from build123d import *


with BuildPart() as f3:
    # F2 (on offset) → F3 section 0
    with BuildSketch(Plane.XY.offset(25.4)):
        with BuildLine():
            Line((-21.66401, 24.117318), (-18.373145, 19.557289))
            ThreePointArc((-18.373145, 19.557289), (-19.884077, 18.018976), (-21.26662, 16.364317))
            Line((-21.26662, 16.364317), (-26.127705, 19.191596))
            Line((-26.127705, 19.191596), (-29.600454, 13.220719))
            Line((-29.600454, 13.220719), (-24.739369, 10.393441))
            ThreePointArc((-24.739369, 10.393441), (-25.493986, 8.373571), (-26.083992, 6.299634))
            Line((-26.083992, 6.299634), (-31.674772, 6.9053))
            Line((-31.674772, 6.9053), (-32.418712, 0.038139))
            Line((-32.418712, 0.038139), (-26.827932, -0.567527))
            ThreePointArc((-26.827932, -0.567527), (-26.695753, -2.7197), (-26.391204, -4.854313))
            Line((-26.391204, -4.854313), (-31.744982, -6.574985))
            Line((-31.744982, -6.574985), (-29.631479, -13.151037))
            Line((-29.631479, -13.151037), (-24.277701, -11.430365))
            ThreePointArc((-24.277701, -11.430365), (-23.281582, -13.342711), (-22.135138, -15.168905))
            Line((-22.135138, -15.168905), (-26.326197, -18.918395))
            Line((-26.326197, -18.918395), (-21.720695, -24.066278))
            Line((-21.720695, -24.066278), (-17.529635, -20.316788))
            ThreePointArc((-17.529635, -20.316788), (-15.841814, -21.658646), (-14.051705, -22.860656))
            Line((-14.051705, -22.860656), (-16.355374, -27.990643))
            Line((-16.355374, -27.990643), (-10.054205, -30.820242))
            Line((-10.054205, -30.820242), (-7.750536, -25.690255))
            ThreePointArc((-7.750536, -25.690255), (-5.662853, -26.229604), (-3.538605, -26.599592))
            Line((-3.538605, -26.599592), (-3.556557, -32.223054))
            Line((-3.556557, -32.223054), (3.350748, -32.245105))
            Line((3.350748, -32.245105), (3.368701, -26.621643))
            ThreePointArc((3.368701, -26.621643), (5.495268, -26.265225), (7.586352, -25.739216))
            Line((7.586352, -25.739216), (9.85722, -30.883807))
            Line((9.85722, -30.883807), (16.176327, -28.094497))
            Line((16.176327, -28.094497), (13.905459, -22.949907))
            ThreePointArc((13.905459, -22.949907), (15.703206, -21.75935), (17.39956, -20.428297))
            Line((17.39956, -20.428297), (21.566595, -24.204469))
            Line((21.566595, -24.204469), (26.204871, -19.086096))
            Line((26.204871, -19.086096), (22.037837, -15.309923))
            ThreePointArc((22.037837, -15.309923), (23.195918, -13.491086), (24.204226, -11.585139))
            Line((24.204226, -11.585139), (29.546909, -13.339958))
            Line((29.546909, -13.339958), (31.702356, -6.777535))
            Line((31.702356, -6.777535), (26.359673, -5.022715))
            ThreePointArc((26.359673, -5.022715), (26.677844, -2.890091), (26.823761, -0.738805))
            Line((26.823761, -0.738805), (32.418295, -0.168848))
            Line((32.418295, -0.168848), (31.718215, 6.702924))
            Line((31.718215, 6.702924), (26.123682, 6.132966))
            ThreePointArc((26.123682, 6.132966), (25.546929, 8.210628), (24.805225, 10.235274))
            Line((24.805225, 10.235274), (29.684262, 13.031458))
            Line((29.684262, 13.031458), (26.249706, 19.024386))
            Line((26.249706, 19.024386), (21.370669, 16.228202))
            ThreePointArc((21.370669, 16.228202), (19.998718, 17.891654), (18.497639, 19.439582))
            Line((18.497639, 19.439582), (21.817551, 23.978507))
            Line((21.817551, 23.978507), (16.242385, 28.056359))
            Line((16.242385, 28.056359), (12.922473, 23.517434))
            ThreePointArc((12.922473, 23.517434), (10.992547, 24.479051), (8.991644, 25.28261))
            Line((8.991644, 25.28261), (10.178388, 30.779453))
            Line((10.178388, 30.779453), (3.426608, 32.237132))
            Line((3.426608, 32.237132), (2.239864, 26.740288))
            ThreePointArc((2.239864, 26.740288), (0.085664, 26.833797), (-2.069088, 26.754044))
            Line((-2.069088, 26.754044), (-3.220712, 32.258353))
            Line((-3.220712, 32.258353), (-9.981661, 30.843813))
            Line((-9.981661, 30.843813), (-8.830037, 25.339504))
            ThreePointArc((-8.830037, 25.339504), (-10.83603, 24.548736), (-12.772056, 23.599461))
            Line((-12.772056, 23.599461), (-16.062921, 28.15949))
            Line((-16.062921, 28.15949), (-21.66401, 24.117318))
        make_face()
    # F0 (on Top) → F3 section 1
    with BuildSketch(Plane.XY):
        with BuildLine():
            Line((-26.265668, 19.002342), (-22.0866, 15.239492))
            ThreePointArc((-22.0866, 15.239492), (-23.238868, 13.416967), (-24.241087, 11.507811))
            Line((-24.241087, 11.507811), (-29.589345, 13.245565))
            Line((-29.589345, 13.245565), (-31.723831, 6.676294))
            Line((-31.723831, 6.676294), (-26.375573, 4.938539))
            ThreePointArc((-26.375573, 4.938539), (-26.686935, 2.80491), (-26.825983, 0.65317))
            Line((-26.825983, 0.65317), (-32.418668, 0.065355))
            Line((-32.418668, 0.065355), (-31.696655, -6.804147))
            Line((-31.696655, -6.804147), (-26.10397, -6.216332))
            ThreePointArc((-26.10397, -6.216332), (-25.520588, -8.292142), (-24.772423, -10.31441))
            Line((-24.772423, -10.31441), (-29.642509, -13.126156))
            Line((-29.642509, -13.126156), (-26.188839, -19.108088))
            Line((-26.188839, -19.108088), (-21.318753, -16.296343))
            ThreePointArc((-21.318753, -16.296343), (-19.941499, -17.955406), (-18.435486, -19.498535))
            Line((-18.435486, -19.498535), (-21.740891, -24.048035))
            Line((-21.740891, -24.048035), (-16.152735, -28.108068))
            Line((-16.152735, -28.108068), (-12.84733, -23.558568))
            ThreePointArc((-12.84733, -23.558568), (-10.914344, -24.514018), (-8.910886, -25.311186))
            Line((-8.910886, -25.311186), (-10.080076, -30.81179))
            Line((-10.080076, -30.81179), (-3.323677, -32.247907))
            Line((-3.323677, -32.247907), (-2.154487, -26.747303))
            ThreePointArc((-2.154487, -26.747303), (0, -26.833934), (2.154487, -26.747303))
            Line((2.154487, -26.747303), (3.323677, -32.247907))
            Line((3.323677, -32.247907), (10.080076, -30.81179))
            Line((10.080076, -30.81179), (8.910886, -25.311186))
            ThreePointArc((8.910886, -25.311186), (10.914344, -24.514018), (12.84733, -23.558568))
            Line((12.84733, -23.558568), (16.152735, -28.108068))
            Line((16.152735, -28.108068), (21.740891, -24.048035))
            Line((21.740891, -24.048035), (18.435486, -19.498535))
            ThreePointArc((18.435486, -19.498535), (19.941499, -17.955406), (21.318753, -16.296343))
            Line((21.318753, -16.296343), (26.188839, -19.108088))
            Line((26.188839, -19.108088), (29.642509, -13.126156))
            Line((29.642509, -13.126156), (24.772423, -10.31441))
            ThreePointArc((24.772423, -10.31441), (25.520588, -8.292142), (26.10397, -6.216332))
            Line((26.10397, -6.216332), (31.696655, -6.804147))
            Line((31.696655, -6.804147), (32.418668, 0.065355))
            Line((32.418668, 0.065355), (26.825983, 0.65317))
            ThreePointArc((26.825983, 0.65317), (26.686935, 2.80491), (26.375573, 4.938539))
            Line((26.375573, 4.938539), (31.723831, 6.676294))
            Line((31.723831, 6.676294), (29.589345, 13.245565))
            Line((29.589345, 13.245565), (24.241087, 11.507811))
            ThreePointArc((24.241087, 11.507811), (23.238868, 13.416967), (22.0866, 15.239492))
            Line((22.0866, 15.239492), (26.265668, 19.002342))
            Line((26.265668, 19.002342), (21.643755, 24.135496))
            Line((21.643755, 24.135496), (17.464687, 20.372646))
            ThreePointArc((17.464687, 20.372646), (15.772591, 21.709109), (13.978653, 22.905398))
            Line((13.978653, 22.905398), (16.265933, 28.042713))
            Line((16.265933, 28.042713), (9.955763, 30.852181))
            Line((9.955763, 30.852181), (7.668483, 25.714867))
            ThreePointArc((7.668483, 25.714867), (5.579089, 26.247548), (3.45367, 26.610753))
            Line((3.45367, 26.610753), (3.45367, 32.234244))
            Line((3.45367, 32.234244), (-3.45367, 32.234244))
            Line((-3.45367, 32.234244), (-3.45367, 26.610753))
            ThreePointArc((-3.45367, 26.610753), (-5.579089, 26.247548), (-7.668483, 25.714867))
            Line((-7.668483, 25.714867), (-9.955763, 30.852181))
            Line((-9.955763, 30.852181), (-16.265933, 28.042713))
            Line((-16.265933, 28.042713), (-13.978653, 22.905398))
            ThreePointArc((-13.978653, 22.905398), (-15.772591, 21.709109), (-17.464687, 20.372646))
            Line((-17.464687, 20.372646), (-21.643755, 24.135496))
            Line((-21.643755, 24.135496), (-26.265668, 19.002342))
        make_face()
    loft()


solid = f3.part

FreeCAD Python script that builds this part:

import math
import FreeCAD as App
import Part
import Sketcher
from FreeCAD import Vector
Q = App.Units.Quantity

doc = App.newDocument("Part")
body = doc.addObject("PartDesign::Body", "Body")

# Sketch on XY plane
sketch1 = body.newObject("Sketcher::SketchObject", "Sketch")
sketch1.AttachmentSupport = (doc.getObject("XY_Plane"), [""])
sketch1.MapMode = "FlatFace"
sketch1.AttachmentOffset = App.Placement(Vector(0, 0, 25.4), App.Rotation())
sketch1.addGeometry(Part.LineSegment(Vector(-21.66401, 24.117318, 0), Vector(-18.373145, 19.557289, 0)), False)
sketch1.addGeometry(Part.ArcOfCircle(Part.Circle(Vector(-0.000044, 0.000042, 0), Vector(0, 0, 1), 26.833873), math.radians(133.211866), math.radians(142.422319)), False)
sketch1.addGeometry(Part.LineSegment(Vector(-21.26662, 16.364317, 0), Vector(-26.127705, 19.191596, 0)), False)
sketch1.addGeometry(Part.LineSegment(Vector(-26.127705, 19.191596, 0), Vector(-29.600454, 13.220719, 0)), False)
sketch1.addGeometry(Part.LineSegment(Vector(-29.600454, 13.220719, 0), Vector(-24.739369, 10.393441, 0)), False)
sketch1.addGeometry(Part.ArcOfCircle(Part.Circle(Vector(-0.000016, 0.000001, 0), Vector(0, 0, 1), 26.833918), math.radians(157.211863), math.radians(166.4223)), False)
sketch1.addGeometry(Part.LineSegment(Vector(-26.083992, 6.299634, 0), Vector(-31.674772, 6.9053, 0)), False)
sketch1.addGeometry(Part.LineSegment(Vector(-31.674772, 6.9053, 0), Vector(-32.418712, 0.038139, 0)), False)
sketch1.addGeometry(Part.LineSegment(Vector(-32.418712, 0.038139, 0), Vector(-26.827932, -0.567527, 0)), False)
sketch1.addGeometry(Part.ArcOfCircle(Part.Circle(Vector(0.000094, 0.000012, 0), Vector(0, 0, 1), 26.834029), math.radians(-178.788106), math.radians(-169.577707)), False)
sketch1.addGeometry(Part.LineSegment(Vector(-26.391204, -4.854313, 0), Vector(-31.744982, -6.574985, 0)), False)
sketch1.addGeometry(Part.LineSegment(Vector(-31.744982, -6.574985, 0), Vector(-29.631479, -13.151037, 0)), False)
sketch1.addGeometry(Part.LineSegment(Vector(-29.631479, -13.151037, 0), Vector(-24.277701, -11.430365, 0)), False)
sketch1.addGeometry(Part.ArcOfCircle(Part.Circle(Vector(0.000072, 0.000041, 0), Vector(0, 0, 1), 26.834016), math.radians(-154.788113), math.radians(-145.577711)), False)
sketch1.addGeometry(Part.LineSegment(Vector(-22.135138, -15.168905, 0), Vector(-26.326197, -18.918395, 0)), False)
sketch1.addGeometry(Part.LineSegment(Vector(-26.326197, -18.918395, 0), Vector(-21.720695, -24.066278, 0)), False)
sketch1.addGeometry(Part.LineSegment(Vector(-21.720695, -24.066278, 0), Vector(-17.529635, -20.316788, 0)), False)
sketch1.addGeometry(Part.ArcOfCircle(Part.Circle(Vector(-0.000084, -0.00012, 0), Vector(0, 0, 1), 26.833788), math.radians(-130.788159), math.radians(-121.577678)), False)
sketch1.addGeometry(Part.LineSegment(Vector(-14.051705, -22.860656, 0), Vector(-16.355374, -27.990643, 0)), False)
sketch1.addGeometry(Part.LineSegment(Vector(-16.355374, -27.990643, 0), Vector(-10.054205, -30.820242, 0)), False)
sketch1.addGeometry(Part.LineSegment(Vector(-10.054205, -30.820242, 0), Vector(-7.750536, -25.690255, 0)), False)
sketch1.addGeometry(Part.ArcOfCircle(Part.Circle(Vector(-0.000017, -0.000085, 0), Vector(0, 0, 1), 26.833848), math.radians(-106.788143), math.radians(-97.577684)), False)
sketch1.addGeometry(Part.LineSegment(Vector(-3.538605, -26.599592, 0), Vector(-3.556557, -32.223054, 0)), False)
sketch1.addGeometry(Part.LineSegment(Vector(-3.556557, -32.223054, 0), Vector(3.350748, -32.245105, 0)), False)
sketch1.addGeometry(Part.LineSegment(Vector(3.350748, -32.245105, 0), Vector(3.368701, -26.621643, 0)), False)
sketch1.addGeometry(Part.ArcOfCircle(Part.Circle(Vector(0.000013, -0.000086, 0), Vector(0, 0, 1), 26.833848), math.radians(-82.788129), math.radians(-73.57767)), False)
sketch1.addGeometry(Part.LineSegment(Vector(7.586352, -25.739216, 0), Vector(9.85722, -30.883807, 0)), False)
sketch1.addGeometry(Part.LineSegment(Vector(9.85722, -30.883807, 0), Vector(16.176327, -28.094497, 0)), False)
sketch1.addGeometry(Part.LineSegment(Vector(16.176327, -28.094497, 0), Vector(13.905459, -22.949907, 0)), False)
sketch1.addGeometry(Part.ArcOfCircle(Part.Circle(Vector(-0.000078, 0.000106, 0), Vector(0, 0, 1), 26.834065), math.radians(-58.7881), math.radians(-49.577715)), False)
sketch1.addGeometry(Part.LineSegment(Vector(17.39956, -20.428297, 0), Vector(21.566595, -24.204469, 0)), False)
sketch1.addGeometry(Part.LineSegment(Vector(21.566595, -24.204469, 0), Vector(26.204871, -19.086096, 0)), False)
sketch1.addGeometry(Part.LineSegment(Vector(26.204871, -19.086096, 0), Vector(22.037837, -15.309923, 0)), False)
sketch1.addGeometry(Part.ArcOfCircle(Part.Circle(Vector(0.000057, -0.000033, 0), Vector(0, 0, 1), 26.833868), math.radians(-34.788137), math.radians(-25.577685)), False)
sketch1.addGeometry(Part.LineSegment(Vector(24.204226, -11.585139, 0), Vector(29.546909, -13.339958, 0)), False)
sketch1.addGeometry(Part.LineSegment(Vector(29.546909, -13.339958, 0), Vector(31.702356, -6.777535, 0)), False)
sketch1.addGeometry(Part.LineSegment(Vector(31.702356, -6.777535, 0), Vector(26.359673, -5.022715, 0)), False)
sketch1.addGeometry(Part.ArcOfCircle(Part.Circle(Vector(-0.000117, 0.000008, 0), Vector(0, 0, 1), 26.834051), math.radians(-10.788096), math.radians(-1.577705)), False)
sketch1.addGeometry(Part.LineSegment(Vector(26.823761, -0.738805, 0), Vector(32.418295, -0.168848, 0)), False)
sketch1.addGeometry(Part.LineSegment(Vector(32.418295, -0.168848, 0), Vector(31.718215, 6.702924, 0)), False)
sketch1.addGeometry(Part.LineSegment(Vector(31.718215, 6.702924, 0), Vector(26.123682, 6.132966, 0)), False)
sketch1.addGeometry(Part.ArcOfCircle(Part.Circle(Vector(-0.000185, -0.000061, 0), Vector(0, 0, 1), 26.834128), math.radians(13.21191), math.radians(22.422273)), False)
sketch1.addGeometry(Part.LineSegment(Vector(24.805225, 10.235274, 0), Vector(29.684262, 13.031458, 0)), False)
sketch1.addGeometry(Part.LineSegment(Vector(29.684262, 13.031458, 0), Vector(26.249706, 19.024386, 0)), False)
sketch1.addGeometry(Part.LineSegment(Vector(26.249706, 19.024386, 0), Vector(21.370669, 16.228202, 0)), False)
sketch1.addGeometry(Part.ArcOfCircle(Part.Circle(Vector(-0.000044, -0.000045, 0), Vector(0, 0, 1), 26.833996), math.radians(37.211893), math.radians(46.422303)), False)
sketch1.addGeometry(Part.LineSegment(Vector(18.497639, 19.439582, 0), Vector(21.817551, 23.978507, 0)), False)
sketch1.addGeometry(Part.LineSegment(Vector(21.817551, 23.978507, 0), Vector(16.242385, 28.056359, 0)), False)
sketch1.addGeometry(Part.LineSegment(Vector(16.242385, 28.056359, 0), Vector(12.922473, 23.517434, 0)), False)
sketch1.addGeometry(Part.ArcOfCircle(Part.Circle(Vector(0.000015, 0.000038, 0), Vector(0, 0, 1), 26.833893), math.radians(61.211862), math.radians(70.422306)), False)
sketch1.addGeometry(Part.LineSegment(Vector(8.991644, 25.28261, 0), Vector(10.178388, 30.779453, 0)), False)
sketch1.addGeometry(Part.LineSegment(Vector(10.178388, 30.779453, 0), Vector(3.426608, 32.237132, 0)), False)
sketch1.addGeometry(Part.LineSegment(Vector(3.426608, 32.237132, 0), Vector(2.239864, 26.740288, 0)), False)
sketch1.addGeometry(Part.ArcOfCircle(Part.Circle(Vector(0, 0.000032, 0), Vector(0, 0, 1), 26.833902), math.radians(85.211868), math.radians(94.422308)), False)
sketch1.addGeometry(Part.LineSegment(Vector(-2.069088, 26.754044, 0), Vector(-3.220712, 32.258353, 0)), False)
sketch1.addGeometry(Part.LineSegment(Vector(-3.220712, 32.258353, 0), Vector(-9.981661, 30.843813, 0)), False)
sketch1.addGeometry(Part.LineSegment(Vector(-9.981661, 30.843813, 0), Vector(-8.830037, 25.339504, 0)), False)
sketch1.addGeometry(Part.ArcOfCircle(Part.Circle(Vector(0.000027, -0.00005, 0), Vector(0, 0, 1), 26.83399), math.radians(109.211893), math.radians(118.422305)), False)
sketch1.addGeometry(Part.LineSegment(Vector(-12.772056, 23.599461, 0), Vector(-16.062921, 28.15949, 0)), False)
sketch1.addGeometry(Part.LineSegment(Vector(-16.062921, 28.15949, 0), Vector(-21.66401, 24.117318, 0)), False)
sketch1.addConstraint(Sketcher.Constraint("Coincident", 0, 2, 1, 1))
sketch1.addConstraint(Sketcher.Constraint("Coincident", 1, 2, 2, 1))
sketch1.addConstraint(Sketcher.Constraint("Coincident", 2, 2, 3, 1))
sketch1.addConstraint(Sketcher.Constraint("Coincident", 3, 2, 4, 1))
sketch1.addConstraint(Sketcher.Constraint("Coincident", 4, 2, 5, 1))
sketch1.addConstraint(Sketcher.Constraint("Coincident", 5, 2, 6, 1))
sketch1.addConstraint(Sketcher.Constraint("Coincident", 6, 2, 7, 1))
sketch1.addConstraint(Sketcher.Constraint("Coincident", 7, 2, 8, 1))
sketch1.addConstraint(Sketcher.Constraint("Coincident", 8, 2, 9, 1))
sketch1.addConstraint(Sketcher.Constraint("Coincident", 9, 2, 10, 1))
sketch1.addConstraint(Sketcher.Constraint("Coincident", 10, 2, 11, 1))
sketch1.addConstraint(Sketcher.Constraint("Coincident", 11, 2, 12, 1))
sketch1.addConstraint(Sketcher.Constraint("Coincident", 12, 2, 13, 1))
sketch1.addConstraint(Sketcher.Constraint("Coincident", 13, 2, 14, 1))
sketch1.addConstraint(Sketcher.Constraint("Coincident", 14, 2, 15, 1))
sketch1.addConstraint(Sketcher.Constraint("Coincident", 15, 2, 16, 1))
sketch1.addConstraint(Sketcher.Constraint("Coincident", 16, 2, 17, 1))
sketch1.addConstraint(Sketcher.Constraint("Coincident", 17, 2, 18, 1))
sketch1.addConstraint(Sketcher.Constraint("Coincident", 18, 2, 19, 1))
sketch1.addConstraint(Sketcher.Constraint("Coincident", 19, 2, 20, 1))
sketch1.addConstraint(Sketcher.Constraint("Coincident", 20, 2, 21, 1))
sketch1.addConstraint(Sketcher.Constraint("Coincident", 21, 2, 22, 1))
sketch1.addConstraint(Sketcher.Constraint("Coincident", 22, 2, 23, 1))
sketch1.addConstraint(Sketcher.Constraint("Coincident", 23, 2, 24, 1))
sketch1.addConstraint(Sketcher.Constraint("Coincident", 24, 2, 25, 1))
sketch1.addConstraint(Sketcher.Constraint("Coincident", 25, 2, 26, 1))
sketch1.addConstraint(Sketcher.Constraint("Coincident", 26, 2, 27, 1))
sketch1.addConstraint(Sketcher.Constraint("Coincident", 27, 2, 28, 1))
sketch1.addConstraint(Sketcher.Constraint("Coincident", 28, 2, 29, 1))
sketch1.addConstraint(Sketcher.Constraint("Coincident", 29, 2, 30, 1))
sketch1.addConstraint(Sketcher.Constraint("Coincident", 30, 2, 31, 1))
sketch1.addConstraint(Sketcher.Constraint("Coincident", 31, 2, 32, 1))
sketch1.addConstraint(Sketcher.Constraint("Coincident", 32, 2, 33, 1))
sketch1.addConstraint(Sketcher.Constraint("Coincident", 33, 2, 34, 1))
sketch1.addConstraint(Sketcher.Constraint("Coincident", 34, 2, 35, 1))
sketch1.addConstraint(Sketcher.Constraint("Coincident", 35, 2, 36, 1))
sketch1.addConstraint(Sketcher.Constraint("Coincident", 36, 2, 37, 1))
sketch1.addConstraint(Sketcher.Constraint("Coincident", 37, 2, 38, 1))
sketch1.addConstraint(Sketcher.Constraint("Coincident", 38, 2, 39, 1))
sketch1.addConstraint(Sketcher.Constraint("Coincident", 39, 2, 40, 1))
sketch1.addConstraint(Sketcher.Constraint("Coincident", 40, 2, 41, 1))
sketch1.addConstraint(Sketcher.Constraint("Coincident", 41, 2, 42, 1))
sketch1.addConstraint(Sketcher.Constraint("Coincident", 42, 2, 43, 1))
sketch1.addConstraint(Sketcher.Constraint("Coincident", 43, 2, 44, 1))
sketch1.addConstraint(Sketcher.Constraint("Coincident", 44, 2, 45, 1))
sketch1.addConstraint(Sketcher.Constraint("Coincident", 45, 2, 46, 1))
sketch1.addConstraint(Sketcher.Constraint("Coincident", 46, 2, 47, 1))
sketch1.addConstraint(Sketcher.Constraint("Coincident", 47, 2, 48, 1))
sketch1.addConstraint(Sketcher.Constraint("Coincident", 48, 2, 49, 1))
sketch1.addConstraint(Sketcher.Constraint("Coincident", 49, 2, 50, 1))
sketch1.addConstraint(Sketcher.Constraint("Coincident", 50, 2, 51, 1))
sketch1.addConstraint(Sketcher.Constraint("Coincident", 51, 2, 52, 1))
sketch1.addConstraint(Sketcher.Constraint("Coincident", 52, 2, 53, 1))
sketch1.addConstraint(Sketcher.Constraint("Coincident", 53, 2, 54, 1))
sketch1.addConstraint(Sketcher.Constraint("Coincident", 54, 2, 55, 1))
sketch1.addConstraint(Sketcher.Constraint("Coincident", 55, 2, 56, 1))
sketch1.addConstraint(Sketcher.Constraint("Coincident", 56, 2, 57, 1))
sketch1.addConstraint(Sketcher.Constraint("Coincident", 57, 2, 58, 1))
sketch1.addConstraint(Sketcher.Constraint("Coincident", 58, 2, 59, 1))
sketch1.addConstraint(Sketcher.Constraint("Coincident", 59, 2, 0, 1))
sketch1.addConstraint(Sketcher.Constraint("PointOnObject", 5, 3, -1))
sketch1.addConstraint(Sketcher.Constraint("PointOnObject", 53, 3, -2))
sketch1.addConstraint(Sketcher.Constraint("Radius", 5, Q("26.833918 mm")))
sketch1.addConstraint(Sketcher.Constraint("Radius", 9, Q("26.834029 mm")))
sketch1.addConstraint(Sketcher.Constraint("Radius", 33, Q("26.833868 mm")))
sketch1.addConstraint(Sketcher.Constraint("Radius", 37, Q("26.834051 mm")))
sketch1.addConstraint(Sketcher.Constraint("Radius", 41, Q("26.834128 mm")))
sketch1.addConstraint(Sketcher.Constraint("Radius", 57, Q("26.83399 mm")))
sketch1.addConstraint(Sketcher.Constraint("Radius", 1, Q("26.833873 mm")))
sketch1.addConstraint(Sketcher.Constraint("Radius", 13, Q("26.834016 mm")))
sketch1.addConstraint(Sketcher.Constraint("Radius", 17, Q("26.833788 mm")))
sketch1.addConstraint(Sketcher.Constraint("Radius", 21, Q("26.833848 mm")))
sketch1.addConstraint(Sketcher.Constraint("Radius", 25, Q("26.833848 mm")))
sketch1.addConstraint(Sketcher.Constraint("Radius", 29, Q("26.834065 mm")))
sketch1.addConstraint(Sketcher.Constraint("Radius", 45, Q("26.833996 mm")))
sketch1.addConstraint(Sketcher.Constraint("Radius", 49, Q("26.833893 mm")))
sketch1.addConstraint(Sketcher.Constraint("Radius", 53, Q("26.833902 mm")))
sketch1.addConstraint(Sketcher.Constraint("DistanceY", -1, 1, 6, 2, Q("6.9053 mm")))
sketch1.addConstraint(Sketcher.Constraint("DistanceX", 12, 2, -1, 1, Q("24.277701 mm")))
sketch1.addConstraint(Sketcher.Constraint("DistanceX", -1, 1, 24, 2, Q("3.368701 mm")))
sketch1.addConstraint(Sketcher.Constraint("DistanceY", -1, 1, 44, 2, Q("16.228202 mm")))
sketch1.addConstraint(Sketcher.Constraint("Distance", 0, Q("5.623492 mm")))
sketch1.addConstraint(Sketcher.Constraint("Distance", 2, Q("5.623491 mm")))
sketch1.addConstraint(Sketcher.Constraint("Distance", 3, Q("6.907341 mm")))
sketch1.addConstraint(Sketcher.Constraint("Distance", 4, Q("5.623491 mm")))
sketch1.addConstraint(Sketcher.Constraint("Distance", 6, Q("5.623491 mm")))
sketch1.addConstraint(Sketcher.Constraint("Distance", 7, Q("6.90734 mm")))
sketch1.addConstraint(Sketcher.Constraint("Distance", 8, Q("5.623491 mm")))
sketch1.addConstraint(Sketcher.Constraint("Distance", 10, Q("5.623491 mm")))
sketch1.addConstraint(Sketcher.Constraint("Distance", 11, Q("6.907341 mm")))
sketch1.addConstraint(Sketcher.Constraint("Distance", 12, Q("5.623491 mm")))
sketch1.addConstraint(Sketcher.Constraint("Distance", 14, Q("5.623491 mm")))
sketch1.addConstraint(Sketcher.Constraint("Distance", 15, Q("6.90734 mm")))
sketch1.addConstraint(Sketcher.Constraint("Distance", 16, Q("5.623492 mm")))
sketch1.addConstraint(Sketcher.Constraint("Distance", 18, Q("5.623492 mm")))
sketch1.addConstraint(Sketcher.Constraint("Distance", 19, Q("6.907341 mm")))
sketch1.addConstraint(Sketcher.Constraint("Distance", 20, Q("5.623492 mm")))
sketch1.addConstraint(Sketcher.Constraint("Distance", 22, Q("5.623491 mm")))
sketch1.addConstraint(Sketcher.Constraint("Distance", 23, Q("6.90734 mm")))
sketch1.addConstraint(Sketcher.Constraint("Distance", 24, Q("5.623491 mm")))
sketch1.addConstraint(Sketcher.Constraint("Distance", 26, Q("5.623492 mm")))
sketch1.addConstraint(Sketcher.Constraint("Distance", 27, Q("6.907341 mm")))
sketch1.addConstraint(Sketcher.Constraint("Distance", 28, Q("5.623491 mm")))
sketch1.addConstraint(Sketcher.Constraint("Distance", 30, Q("5.623491 mm")))
sketch1.addConstraint(Sketcher.Constraint("Distance", 31, Q("6.90734 mm")))
sketch1.addConstraint(Sketcher.Constraint("Distance", 32, Q("5.623491 mm")))
sketch1.addConstraint(Sketcher.Constraint("Distance", 34, Q("5.623491 mm")))
sketch1.addConstraint(Sketcher.Constraint("Distance", 35, Q("6.90734 mm")))
sketch1.addConstraint(Sketcher.Constraint("Distance", 36, Q("5.623491 mm")))
sketch1.addConstraint(Sketcher.Constraint("Distance", 38, Q("5.623492 mm")))
sketch1.addConstraint(Sketcher.Constraint("Distance", 39, Q("6.907341 mm")))
sketch1.addConstraint(Sketcher.Constraint("Distance", 40, Q("5.623491 mm")))
sketch1.addConstraint(Sketcher.Constraint("Distance", 42, Q("5.623491 mm")))
sketch1.addConstraint(Sketcher.Constraint("Distance", 43, Q("6.907341 mm")))
sketch1.addConstraint(Sketcher.Constraint("Distance", 44, Q("5.623491 mm")))
sketch1.addConstraint(Sketcher.Constraint("Distance", 46, Q("5.623491 mm")))
sketch1.addConstraint(Sketcher.Constraint("Distance", 47, Q("6.907341 mm")))
sketch1.addConstraint(Sketcher.Constraint("Distance", 48, Q("5.623491 mm")))
sketch1.addConstraint(Sketcher.Constraint("Distance", 50, Q("5.62349 mm")))
sketch1.addConstraint(Sketcher.Constraint("Distance", 51, Q("6.907341 mm")))
sketch1.addConstraint(Sketcher.Constraint("Distance", 52, Q("5.623491 mm")))
sketch1.addConstraint(Sketcher.Constraint("Distance", 54, Q("5.623491 mm")))
sketch1.addConstraint(Sketcher.Constraint("Distance", 55, Q("6.907341 mm")))
sketch1.addConstraint(Sketcher.Constraint("Distance", 56, Q("5.623491 mm")))
sketch1.addConstraint(Sketcher.Constraint("Distance", 58, Q("5.623492 mm")))
sketch1.addConstraint(Sketcher.Constraint("Distance", 59, Q("6.90734 mm")))
sketch1.addConstraint(Sketcher.Constraint("DistanceY", 17, 3, -1, 1, Q("0.00012 mm")))
sketch1.addConstraint(Sketcher.Constraint("DistanceY", -1, 1, 0, 2, Q("19.557289 mm")))
sketch1.addConstraint(Sketcher.Constraint("DistanceX", 1, 2, -1, 1, Q("21.26662 mm")))
sketch1.addConstraint(Sketcher.Constraint("DistanceY", -1, 1, 3, 2, Q("13.220719 mm")))
sketch1.addConstraint(Sketcher.Constraint("DistanceX", 4, 2, -1, 1, Q("24.739369 mm")))
sketch1.addConstraint(Sketcher.Constraint("DistanceY", -1, 1, 4, 2, Q("10.393441 mm")))
sketch1.addConstraint(Sketcher.Constraint("DistanceX", 5, 2, -1, 1, Q("26.083992 mm")))
sketch1.addConstraint(Sketcher.Constraint("DistanceY", -1, 1, 7, 2, Q("0.038139 mm")))
sketch1.addConstraint(Sketcher.Constraint("DistanceX", 10, 2, -1, 1, Q("31.744982 mm")))
sketch1.addConstraint(Sketcher.Constraint("DistanceX", 11, 2, -1, 1, Q("29.631479 mm")))
sketch1.addConstraint(Sketcher.Constraint("DistanceY", 15, 2, -1, 1, Q("24.066278 mm")))
sketch1.addConstraint(Sketcher.Constraint("DistanceY", 21, 2, -1, 1, Q("26.599592 mm")))
sketch1.addConstraint(Sketcher.Constraint("DistanceX", -1, 1, 26, 2, Q("9.85722 mm")))
sketch1.addConstraint(Sketcher.Constraint("DistanceX", -1, 1, 28, 2, Q("13.905459 mm")))
sketch1.addConstraint(Sketcher.Constraint("DistanceX", -1, 1, 29, 2, Q("17.39956 mm")))
sketch1.addConstraint(Sketcher.Constraint("DistanceY", 30, 2, -1, 1, Q("24.204469 mm")))
sketch1.addConstraint(Sketcher.Constraint("DistanceX", -1, 1, 31, 2, Q("26.204871 mm")))
sketch1.addConstraint(Sketcher.Constraint("DistanceY", 33, 2, -1, 1, Q("11.585139 mm")))
sketch1.addConstraint(Sketcher.Constraint("DistanceX", -1, 1, 34, 2, Q("29.546909 mm")))
sketch1.addConstraint(Sketcher.Constraint("DistanceX", -1, 1, 37, 2, Q("26.823761 mm")))
sketch1.addConstraint(Sketcher.Constraint("DistanceX", -1, 1, 40, 2, Q("26.123682 mm")))
sketch1.addConstraint(Sketcher.Constraint("DistanceY", -1, 1, 42, 2, Q("13.031458 mm")))
sketch1.addConstraint(Sketcher.Constraint("DistanceX", -1, 1, 44, 2, Q("21.370669 mm")))
sketch1.addConstraint(Sketcher.Constraint("DistanceX", -1, 1, 45, 2, Q("18.497639 mm")))
sketch1.addConstraint(Sketcher.Constraint("DistanceX", -1, 1, 46, 2, Q("21.817551 mm")))
sketch1.addConstraint(Sketcher.Constraint("DistanceY", -1, 1, 47, 2, Q("28.056359 mm")))
sketch1.addConstraint(Sketcher.Constraint("DistanceY", -1, 1, 49, 2, Q("25.28261 mm")))
sketch1.addConstraint(Sketcher.Constraint("DistanceX", 54, 2, -1, 1, Q("3.220712 mm")))
sketch1.addConstraint(Sketcher.Constraint("DistanceX", 55, 2, -1, 1, Q("9.981661 mm")))
sketch1.addConstraint(Sketcher.Constraint("DistanceY", -1, 1, 57, 2, Q("23.599461 mm")))
sketch1.addConstraint(Sketcher.Constraint("DistanceX", 58, 2, -1, 1, Q("16.062921 mm")))
sketch1.addConstraint(Sketcher.Constraint("DistanceY", -1, 1, 58, 2, Q("28.15949 mm")))
sketch1.addConstraint(Sketcher.Constraint("DistanceX", 59, 2, -1, 1, Q("21.66401 mm")))
sketch1.addConstraint(Sketcher.Constraint("DistanceY", -1, 1, 29, 3, Q("0.000106 mm")))
sketch1.addConstraint(Sketcher.Constraint("DistanceX", 37, 3, -1, 1, Q("0.000117 mm")))
sketch1.addConstraint(Sketcher.Constraint("DistanceX", 41, 3, -1, 1, Q("0.000185 mm")))
sketch1.addConstraint(Sketcher.Constraint("DistanceY", -1, 1, 1, 2, Q("16.364317 mm")))
sketch1.addConstraint(Sketcher.Constraint("DistanceX", 8, 2, -1, 1, Q("26.827932 mm")))
sketch1.addConstraint(Sketcher.Constraint("DistanceX", 9, 2, -1, 1, Q("26.391204 mm")))
sketch1.addConstraint(Sketcher.Constraint("DistanceY", 9, 2, -1, 1, Q("4.854313 mm")))
sketch1.addConstraint(Sketcher.Constraint("DistanceX", 13, 2, -1, 1, Q("22.135138 mm")))
sketch1.addConstraint(Sketcher.Constraint("DistanceY", 13, 2, -1, 1, Q("15.168905 mm")))
sketch1.addConstraint(Sketcher.Constraint("DistanceX", 14, 2, -1, 1, Q("26.326197 mm")))
sketch1.addConstraint(Sketcher.Constraint("DistanceX", 16, 2, -1, 1, Q("17.529635 mm")))
sketch1.addConstraint(Sketcher.Constraint("DistanceX", 17, 2, -1, 1, Q("14.051705 mm")))
sketch1.addConstraint(Sketcher.Constraint("DistanceX", 18, 2, -1, 1, Q("16.355374 mm")))
sketch1.addConstraint(Sketcher.Constraint("DistanceX", 19, 2, -1, 1, Q("10.054205 mm")))
sketch1.addConstraint(Sketcher.Constraint("DistanceX", 20, 2, -1, 1, Q("7.750536 mm")))
sketch1.addConstraint(Sketcher.Constraint("DistanceX", 21, 2, -1, 1, Q("3.538605 mm")))
sketch1.addConstraint(Sketcher.Constraint("DistanceX", 22, 2, -1, 1, Q("3.556557 mm")))
sketch1.addConstraint(Sketcher.Constraint("DistanceY", 23, 2, -1, 1, Q("32.245105 mm")))
sketch1.addConstraint(Sketcher.Constraint("DistanceX", -1, 1, 25, 2, Q("7.586352 mm")))
sketch1.addConstraint(Sketcher.Constraint("DistanceY", 25, 2, -1, 1, Q("25.739216 mm")))
sketch1.addConstraint(Sketcher.Constraint("DistanceX", -1, 1, 27, 2, Q("16.176327 mm")))
sketch1.addConstraint(Sketcher.Constraint("DistanceX", -1, 1, 32, 2, Q("22.037837 mm")))
sketch1.addConstraint(Sketcher.Constraint("DistanceX", -1, 1, 33, 2, Q("24.204226 mm")))
sketch1.addConstraint(Sketcher.Constraint("DistanceX", -1, 1, 35, 2, Q("31.702356 mm")))
sketch1.addConstraint(Sketcher.Constraint("DistanceX", -1, 1, 36, 2, Q("26.359673 mm")))
sketch1.addConstraint(Sketcher.Constraint("DistanceX", -1, 1, 38, 2, Q("32.418295 mm")))
sketch1.addConstraint(Sketcher.Constraint("DistanceX", -1, 1, 39, 2, Q("31.718215 mm")))
sketch1.addConstraint(Sketcher.Constraint("DistanceX", -1, 1, 41, 2, Q("24.805225 mm")))
sketch1.addConstraint(Sketcher.Constraint("DistanceY", -1, 1, 45, 2, Q("19.439582 mm")))
sketch1.addConstraint(Sketcher.Constraint("DistanceX", -1, 1, 48, 2, Q("12.922473 mm")))
sketch1.addConstraint(Sketcher.Constraint("DistanceX", -1, 1, 49, 2, Q("8.991644 mm")))
sketch1.addConstraint(Sketcher.Constraint("DistanceX", -1, 1, 50, 2, Q("10.178388 mm")))
sketch1.addConstraint(Sketcher.Constraint("DistanceX", -1, 1, 51, 2, Q("3.426608 mm")))
sketch1.addConstraint(Sketcher.Constraint("DistanceX", -1, 1, 52, 2, Q("2.239864 mm")))
sketch1.addConstraint(Sketcher.Constraint("DistanceX", 53, 2, -1, 1, Q("2.069088 mm")))
sketch1.addConstraint(Sketcher.Constraint("DistanceX", 56, 2, -1, 1, Q("8.830037 mm")))

# Sketch on XY plane
sketch2 = body.newObject("Sketcher::SketchObject", "Sketch001")
sketch2.AttachmentSupport = (doc.getObject("XY_Plane"), [""])
sketch2.MapMode = "FlatFace"
sketch2.addGeometry(Part.LineSegment(Vector(-26.265668, 19.002342, 0), Vector(-22.0866, 15.239492, 0)), False)
sketch2.addGeometry(Part.ArcOfCircle(Part.Circle(Vector(0.000125, -0.000072, 0), Vector(0, 0, 1), 26.834078), math.radians(145.39481), math.radians(154.60519)), False)
sketch2.addGeometry(Part.LineSegment(Vector(-24.241087, 11.507811, 0), Vector(-29.589345, 13.245565, 0)), False)
sketch2.addGeometry(Part.LineSegment(Vector(-29.589345, 13.245565, 0), Vector(-31.723831, 6.676294, 0)), False)
sketch2.addGeometry(Part.LineSegment(Vector(-31.723831, 6.676294, 0), Vector(-26.375573, 4.938539, 0)), False)
sketch2.addGeometry(Part.ArcOfCircle(Part.Circle(Vector(-0.000075, 0.000011, 0), Vector(0, 0, 1), 26.833859), math.radians(169.394778), math.radians(178.605233)), False)
sketch2.addGeometry(Part.LineSegment(Vector(-26.825983, 0.65317, 0), Vector(-32.418668, 0.065355, 0)), False)
sketch2.addGeometry(Part.LineSegment(Vector(-32.418668, 0.065355, 0), Vector(-31.696655, -6.804147, 0)), False)
sketch2.addGeometry(Part.LineSegment(Vector(-31.696655, -6.804147, 0), Vector(-26.10397, -6.216332, 0)), False)
sketch2.addGeometry(Part.ArcOfCircle(Part.Circle(Vector(-0.000093, -0.000026, 0), Vector(0, 0, 1), 26.833838), math.radians(-166.605222), math.radians(-157.394759)), False)
sketch2.addGeometry(Part.LineSegment(Vector(-24.772423, -10.31441, 0), Vector(-29.642509, -13.126156, 0)), False)
sketch2.addGeometry(Part.LineSegment(Vector(-29.642509, -13.126156, 0), Vector(-26.188839, -19.108088, 0)), False)
sketch2.addGeometry(Part.LineSegment(Vector(-26.188839, -19.108088, 0), Vector(-21.318753, -16.296343, 0)), False)
sketch2.addGeometry(Part.ArcOfCircle(Part.Circle(Vector(0.000132, 0.000121, 0), Vector(0, 0, 1), 26.834112), math.radians(-142.605181), math.radians(-133.394812)), False)
sketch2.addGeometry(Part.LineSegment(Vector(-18.435486, -19.498535, 0), Vector(-21.740891, -24.048035, 0)), False)
sketch2.addGeometry(Part.LineSegment(Vector(-21.740891, -24.048035, 0), Vector(-16.152735, -28.108068, 0)), False)
sketch2.addGeometry(Part.LineSegment(Vector(-16.152735, -28.108068, 0), Vector(-12.84733, -23.558568, 0)), False)
sketch2.addGeometry(Part.ArcOfCircle(Part.Circle(Vector(0.000087, 0.000193, 0), Vector(0, 0, 1), 26.834145), math.radians(-118.605181), math.radians(-109.394824)), False)
sketch2.addGeometry(Part.LineSegment(Vector(-8.910886, -25.311186, 0), Vector(-10.080076, -30.81179, 0)), False)
sketch2.addGeometry(Part.LineSegment(Vector(-10.080076, -30.81179, 0), Vector(-3.323677, -32.247907, 0)), False)
sketch2.addGeometry(Part.LineSegment(Vector(-3.323677, -32.247907, 0), Vector(-2.154487, -26.747303, 0)), False)
sketch2.addGeometry(Part.ArcOfCircle(Part.Circle(Vector(0, 0.000104, 0), Vector(0, 0, 1), 26.834038), math.radians(-94.605197), math.radians(-85.394803)), False)
sketch2.addGeometry(Part.LineSegment(Vector(2.154487, -26.747303, 0), Vector(3.323677, -32.247907, 0)), False)
sketch2.addGeometry(Part.LineSegment(Vector(3.323677, -32.247907, 0), Vector(10.080076, -30.81179, 0)), False)
sketch2.addGeometry(Part.LineSegment(Vector(10.080076, -30.81179, 0), Vector(8.910886, -25.311186, 0)), False)
sketch2.addGeometry(Part.ArcOfCircle(Part.Circle(Vector(-0.000087, 0.000193, 0), Vector(0, 0, 1), 26.834145), math.radians(-70.605176), math.radians(-61.394819)), False)
sketch2.addGeometry(Part.LineSegment(Vector(12.84733, -23.558568, 0), Vector(16.152735, -28.108068, 0)), False)
sketch2.addGeometry(Part.LineSegment(Vector(16.152735, -28.108068, 0), Vector(21.740891, -24.048035, 0)), False)
sketch2.addGeometry(Part.LineSegment(Vector(21.740891, -24.048035, 0), Vector(18.435486, -19.498535, 0)), False)
sketch2.addGeometry(Part.ArcOfCircle(Part.Circle(Vector(-0.000132, 0.000121, 0), Vector(0, 0, 1), 26.834112), math.radians(-46.605188), math.radians(-37.394819)), False)
sketch2.addGeometry(Part.LineSegment(Vector(21.318753, -16.296343, 0), Vector(26.188839, -19.108088, 0)), False)
sketch2.addGeometry(Part.LineSegment(Vector(26.188839, -19.108088, 0), Vector(29.642509, -13.126156, 0)), False)
sketch2.addGeometry(Part.LineSegment(Vector(29.642509, -13.126156, 0), Vector(24.772423, -10.31441, 0)), False)
sketch2.addGeometry(Part.ArcOfCircle(Part.Circle(Vector(0.000093, -0.000026, 0), Vector(0, 0, 1), 26.833838), math.radians(-22.605241), math.radians(-13.394778)), False)
sketch2.addGeometry(Part.LineSegment(Vector(26.10397, -6.216332, 0), Vector(31.696655, -6.804147, 0)), False)
sketch2.addGeometry(Part.LineSegment(Vector(31.696655, -6.804147, 0), Vector(32.418668, 0.065355, 0)), False)
sketch2.addGeometry(Part.LineSegment(Vector(32.418668, 0.065355, 0), Vector(26.825983, 0.65317, 0)), False)
sketch2.addGeometry(Part.ArcOfCircle(Part.Circle(Vector(0.000075, 0.000011, 0), Vector(0, 0, 1), 26.833859), math.radians(1.394767), math.radians(10.605222)), False)
sketch2.addGeometry(Part.LineSegment(Vector(26.375573, 4.938539, 0), Vector(31.723831, 6.676294, 0)), False)
sketch2.addGeometry(Part.LineSegment(Vector(31.723831, 6.676294, 0), Vector(29.589345, 13.245565, 0)), False)
sketch2.addGeometry(Part.LineSegment(Vector(29.589345, 13.245565, 0), Vector(24.241087, 11.507811, 0)), False)
sketch2.addGeometry(Part.ArcOfCircle(Part.Circle(Vector(-0.000125, -0.000072, 0), Vector(0, 0, 1), 26.834078), math.radians(25.39481), math.radians(34.60519)), False)
sketch2.addGeometry(Part.LineSegment(Vector(22.0866, 15.239492, 0), Vector(26.265668, 19.002342, 0)), False)
sketch2.addGeometry(Part.LineSegment(Vector(26.265668, 19.002342, 0), Vector(21.643755, 24.135496, 0)), False)
sketch2.addGeometry(Part.LineSegment(Vector(21.643755, 24.135496, 0), Vector(17.464687, 20.372646, 0)), False)
sketch2.addGeometry(Part.ArcOfCircle(Part.Circle(Vector(0.000147, 0.000202, 0), Vector(0, 0, 1), 26.833685), math.radians(49.394741), math.radians(58.605258)), False)
sketch2.addGeometry(Part.LineSegment(Vector(13.978653, 22.905398, 0), Vector(16.265933, 28.042713, 0)), False)
sketch2.addGeometry(Part.LineSegment(Vector(16.265933, 28.042713, 0), Vector(9.955763, 30.852181, 0)), False)
sketch2.addGeometry(Part.LineSegment(Vector(9.955763, 30.852181, 0), Vector(7.668483, 25.714867, 0)), False)
sketch2.addGeometry(Part.ArcOfCircle(Part.Circle(Vector(-0.000004, -0.000022, 0), Vector(0, 0, 1), 26.833957), math.radians(73.394791), math.radians(82.605213)), False)
sketch2.addGeometry(Part.LineSegment(Vector(3.45367, 26.610753, 0), Vector(3.45367, 32.234244, 0)), False)
sketch2.addGeometry(Part.LineSegment(Vector(3.45367, 32.234244, 0), Vector(-3.45367, 32.234244, 0)), False)
sketch2.addGeometry(Part.LineSegment(Vector(-3.45367, 32.234244, 0), Vector(-3.45367, 26.610753, 0)), False)
sketch2.addGeometry(Part.ArcOfCircle(Part.Circle(Vector(0.000004, -0.000022, 0), Vector(0, 0, 1), 26.833957), math.radians(97.394787), math.radians(106.605209)), False)
sketch2.addGeometry(Part.LineSegment(Vector(-7.668483, 25.714867, 0), Vector(-9.955763, 30.852181, 0)), False)
sketch2.addGeometry(Part.LineSegment(Vector(-9.955763, 30.852181, 0), Vector(-16.265933, 28.042713, 0)), False)
sketch2.addGeometry(Part.LineSegment(Vector(-16.265933, 28.042713, 0), Vector(-13.978653, 22.905398, 0)), False)
sketch2.addGeometry(Part.ArcOfCircle(Part.Circle(Vector(-0.000147, 0.000202, 0), Vector(0, 0, 1), 26.833685), math.radians(121.394742), math.radians(130.605259)), False)
sketch2.addGeometry(Part.LineSegment(Vector(-17.464687, 20.372646, 0), Vector(-21.643755, 24.135496, 0)), False)
sketch2.addGeometry(Part.LineSegment(Vector(-21.643755, 24.135496, 0), Vector(-26.265668, 19.002342, 0)), False)
sketch2.addConstraint(Sketcher.Constraint("Coincident", 0, 2, 1, 1))
sketch2.addConstraint(Sketcher.Constraint("Coincident", 1, 2, 2, 1))
sketch2.addConstraint(Sketcher.Constraint("Coincident", 2, 2, 3, 1))
sketch2.addConstraint(Sketcher.Constraint("Coincident", 3, 2, 4, 1))
sketch2.addConstraint(Sketcher.Constraint("Coincident", 4, 2, 5, 1))
sketch2.addConstraint(Sketcher.Constraint("Coincident", 5, 2, 6, 1))
sketch2.addConstraint(Sketcher.Constraint("Coincident", 6, 2, 7, 1))
sketch2.addConstraint(Sketcher.Constraint("Coincident", 7, 2, 8, 1))
sketch2.addConstraint(Sketcher.Constraint("Coincident", 8, 2, 9, 1))
sketch2.addConstraint(Sketcher.Constraint("Coincident", 9, 2, 10, 1))
sketch2.addConstraint(Sketcher.Constraint("Coincident", 10, 2, 11, 1))
sketch2.addConstraint(Sketcher.Constraint("Coincident", 11, 2, 12, 1))
sketch2.addConstraint(Sketcher.Constraint("Coincident", 12, 2, 13, 1))
sketch2.addConstraint(Sketcher.Constraint("Coincident", 13, 2, 14, 1))
sketch2.addConstraint(Sketcher.Constraint("Coincident", 14, 2, 15, 1))
sketch2.addConstraint(Sketcher.Constraint("Coincident", 15, 2, 16, 1))
sketch2.addConstraint(Sketcher.Constraint("Coincident", 16, 2, 17, 1))
sketch2.addConstraint(Sketcher.Constraint("Coincident", 17, 2, 18, 1))
sketch2.addConstraint(Sketcher.Constraint("Coincident", 18, 2, 19, 1))
sketch2.addConstraint(Sketcher.Constraint("Coincident", 19, 2, 20, 1))
sketch2.addConstraint(Sketcher.Constraint("Coincident", 20, 2, 21, 1))
sketch2.addConstraint(Sketcher.Constraint("Coincident", 21, 2, 22, 1))
sketch2.addConstraint(Sketcher.Constraint("Coincident", 22, 2, 23, 1))
sketch2.addConstraint(Sketcher.Constraint("Coincident", 23, 2, 24, 1))
sketch2.addConstraint(Sketcher.Constraint("Coincident", 24, 2, 25, 1))
sketch2.addConstraint(Sketcher.Constraint("Coincident", 25, 2, 26, 1))
sketch2.addConstraint(Sketcher.Constraint("Coincident", 26, 2, 27, 1))
sketch2.addConstraint(Sketcher.Constraint("Coincident", 27, 2, 28, 1))
sketch2.addConstraint(Sketcher.Constraint("Coincident", 28, 2, 29, 1))
sketch2.addConstraint(Sketcher.Constraint("Coincident", 29, 2, 30, 1))
sketch2.addConstraint(Sketcher.Constraint("Coincident", 30, 2, 31, 1))
sketch2.addConstraint(Sketcher.Constraint("Coincident", 31, 2, 32, 1))
sketch2.addConstraint(Sketcher.Constraint("Coincident", 32, 2, 33, 1))
sketch2.addConstraint(Sketcher.Constraint("Coincident", 33, 2, 34, 1))
sketch2.addConstraint(Sketcher.Constraint("Coincident", 34, 2, 35, 1))
sketch2.addConstraint(Sketcher.Constraint("Coincident", 35, 2, 36, 1))
sketch2.addConstraint(Sketcher.Constraint("Coincident", 36, 2, 37, 1))
sketch2.addConstraint(Sketcher.Constraint("Coincident", 37, 2, 38, 1))
sketch2.addConstraint(Sketcher.Constraint("Coincident", 38, 2, 39, 1))
sketch2.addConstraint(Sketcher.Constraint("Coincident", 39, 2, 40, 1))
sketch2.addConstraint(Sketcher.Constraint("Coincident", 40, 2, 41, 1))
sketch2.addConstraint(Sketcher.Constraint("Coincident", 41, 2, 42, 1))
sketch2.addConstraint(Sketcher.Constraint("Coincident", 42, 2, 43, 1))
sketch2.addConstraint(Sketcher.Constraint("Coincident", 43, 2, 44, 1))
sketch2.addConstraint(Sketcher.Constraint("Coincident", 44, 2, 45, 1))
sketch2.addConstraint(Sketcher.Constraint("Coincident", 45, 2, 46, 1))
sketch2.addConstraint(Sketcher.Constraint("Coincident", 46, 2, 47, 1))
sketch2.addConstraint(Sketcher.Constraint("Coincident", 47, 2, 48, 1))
sketch2.addConstraint(Sketcher.Constraint("Coincident", 48, 2, 49, 1))
sketch2.addConstraint(Sketcher.Constraint("Coincident", 49, 2, 50, 1))
sketch2.addConstraint(Sketcher.Constraint("Coincident", 50, 2, 51, 1))
sketch2.addConstraint(Sketcher.Constraint("Coincident", 51, 2, 52, 1))
sketch2.addConstraint(Sketcher.Constraint("Coincident", 52, 2, 53, 1))
sketch2.addConstraint(Sketcher.Constraint("Coincident", 53, 2, 54, 1))
sketch2.addConstraint(Sketcher.Constraint("Coincident", 54, 2, 55, 1))
sketch2.addConstraint(Sketcher.Constraint("Coincident", 55, 2, 56, 1))
sketch2.addConstraint(Sketcher.Constraint("Coincident", 56, 2, 57, 1))
sketch2.addConstraint(Sketcher.Constraint("Coincident", 57, 2, 58, 1))
sketch2.addConstraint(Sketcher.Constraint("Coincident", 58, 2, 59, 1))
sketch2.addConstraint(Sketcher.Constraint("Coincident", 59, 2, 0, 1))
sketch2.addConstraint(Sketcher.Constraint("Vertical", 50))
sketch2.addConstraint(Sketcher.Constraint("Horizontal", 51))
sketch2.addConstraint(Sketcher.Constraint("Vertical", 52))
sketch2.addConstraint(Sketcher.Constraint("Coincident", 53, 3, 49, 3))
sketch2.addConstraint(Sketcher.Constraint("Equal", 17, 25))
sketch2.addConstraint(Sketcher.Constraint("Equal", 13, 29))
sketch2.addConstraint(Sketcher.Constraint("Equal", 9, 33))
sketch2.addConstraint(Sketcher.Constraint("Equal", 5, 37))
sketch2.addConstraint(Sketcher.Constraint("Equal", 1, 41))
sketch2.addConstraint(Sketcher.Constraint("Equal", 49, 53))
sketch2.addConstraint(Sketcher.Constraint("Equal", 45, 57))
sketch2.addConstraint(Sketcher.Constraint("Symmetric", 17, 3, 25, 3, -2))
sketch2.addConstraint(Sketcher.Constraint("Symmetric", 13, 3, 29, 3, -2))
sketch2.addConstraint(Sketcher.Constraint("Symmetric", 9, 3, 33, 3, -2))
sketch2.addConstraint(Sketcher.Constraint("Symmetric", 5, 3, 37, 3, -2))
sketch2.addConstraint(Sketcher.Constraint("Symmetric", 1, 3, 41, 3, -2))
sketch2.addConstraint(Sketcher.Constraint("Symmetric", 45, 3, 57, 3, -2))
sketch2.addConstraint(Sketcher.Constraint("Symmetric", 20, 2, 21, 2, -2))
sketch2.addConstraint(Sketcher.Constraint("Symmetric", 19, 2, 22, 2, -2))
sketch2.addConstraint(Sketcher.Constraint("Symmetric", 18, 2, 23, 2, -2))
sketch2.addConstraint(Sketcher.Constraint("Symmetric", 15, 2, 26, 2, -2))
sketch2.addConstraint(Sketcher.Constraint("Symmetric", 14, 2, 27, 2, -2))
sketch2.addConstraint(Sketcher.Constraint("Symmetric", 11, 2, 30, 2, -2))
sketch2.addConstraint(Sketcher.Constraint("Symmetric", 10, 2, 31, 2, -2))
sketch2.addConstraint(Sketcher.Constraint("Symmetric", 7, 2, 34, 2, -2))
sketch2.addConstraint(Sketcher.Constraint("Symmetric", 6, 2, 35, 2, -2))
sketch2.addConstraint(Sketcher.Constraint("Symmetric", 3, 2, 38, 2, -2))
sketch2.addConstraint(Sketcher.Constraint("Symmetric", 2, 2, 39, 2, -2))
sketch2.addConstraint(Sketcher.Constraint("Symmetric", 49, 2, 52, 2, -2))
sketch2.addConstraint(Sketcher.Constraint("Symmetric", 47, 2, 54, 2, -2))
sketch2.addConstraint(Sketcher.Constraint("Symmetric", 46, 2, 55, 2, -2))
sketch2.addConstraint(Sketcher.Constraint("Symmetric", 43, 2, 58, 2, -2))
sketch2.addConstraint(Sketcher.Constraint("Symmetric", 42, 2, 59, 2, -2))
sketch2.addConstraint(Sketcher.Constraint("Perpendicular", 2, 3))
sketch2.addConstraint(Sketcher.Constraint("Perpendicular", 3, 4))
sketch2.addConstraint(Sketcher.Constraint("Perpendicular", 6, 7))
sketch2.addConstraint(Sketcher.Constraint("Perpendicular", 7, 8))
sketch2.addConstraint(Sketcher.Constraint("Perpendicular", 10, 11))
sketch2.addConstraint(Sketcher.Constraint("Perpendicular", 11, 12))
sketch2.addConstraint(Sketcher.Constraint("Perpendicular", 14, 15))
sketch2.addConstraint(Sketcher.Constraint("Perpendicular", 15, 16))
sketch2.addConstraint(Sketcher.Constraint("Perpendicular", 18, 19))
sketch2.addConstraint(Sketcher.Constraint("Perpendicular", 19, 20))
sketch2.addConstraint(Sketcher.Constraint("Perpendicular", 23, 24))
sketch2.addConstraint(Sketcher.Constraint("Perpendicular", 26, 27))
sketch2.addConstraint(Sketcher.Constraint("Perpendicular", 27, 28))
sketch2.addConstraint(Sketcher.Constraint("Perpendicular", 30, 31))
sketch2.addConstraint(Sketcher.Constraint("Perpendicular", 31, 32))
sketch2.addConstraint(Sketcher.Constraint("Perpendicular", 34, 35))
sketch2.addConstraint(Sketcher.Constraint("Perpendicular", 35, 36))
sketch2.addConstraint(Sketcher.Constraint("Perpendicular", 38, 39))
sketch2.addConstraint(Sketcher.Constraint("Perpendicular", 39, 40))
sketch2.addConstraint(Sketcher.Constraint("Perpendicular", 42, 43))
sketch2.addConstraint(Sketcher.Constraint("Perpendicular", 43, 44))
sketch2.addConstraint(Sketcher.Constraint("Perpendicular", 46, 47))
sketch2.addConstraint(Sketcher.Constraint("Perpendicular", 47, 48))
sketch2.addConstraint(Sketcher.Constraint("Perpendicular", 54, 55))
sketch2.addConstraint(Sketcher.Constraint("Perpendicular", 55, 56))
sketch2.addConstraint(Sketcher.Constraint("Parallel", 0, 58))
sketch2.addConstraint(Sketcher.Constraint("Perpendicular", 58, 59))
sketch2.addConstraint(Sketcher.Constraint("Equal", 0, 2))
sketch2.addConstraint(Sketcher.Constraint("Equal", 2, 4))
sketch2.addConstraint(Sketcher.Constraint("Equal", 4, 6))
sketch2.addConstraint(Sketcher.Constraint("Equal", 3, 7))
sketch2.addConstraint(Sketcher.Constraint("Equal", 6, 8))
sketch2.addConstraint(Sketcher.Constraint("Equal", 8, 10))
sketch2.addConstraint(Sketcher.Constraint("Equal", 7, 11))
sketch2.addConstraint(Sketcher.Constraint("Equal", 10, 12))
sketch2.addConstraint(Sketcher.Constraint("Equal", 12, 14))
sketch2.addConstraint(Sketcher.Constraint("Equal", 11, 15))
sketch2.addConstraint(Sketcher.Constraint("Equal", 14, 16))
sketch2.addConstraint(Sketcher.Constraint("Equal", 16, 18))
sketch2.addConstraint(Sketcher.Constraint("Equal", 15, 19))
sketch2.addConstraint(Sketcher.Constraint("Equal", 18, 20))
sketch2.addConstraint(Sketcher.Constraint("Equal", 39, 43))
sketch2.addConstraint(Sketcher.Constraint("Equal", 42, 44))
sketch2.addConstraint(Sketcher.Constraint("Equal", 44, 46))
sketch2.addConstraint(Sketcher.Constraint("Equal", 43, 47))
sketch2.addConstraint(Sketcher.Constraint("Equal", 46, 48))
sketch2.addConstraint(Sketcher.Constraint("Angle", 0, Q("-42.000002 deg")))
sketch2.addConstraint(Sketcher.Constraint("Angle", 2, Q("162.000004 deg")))
sketch2.addConstraint(Sketcher.Constraint("Angle", 6, Q("-173.999999 deg")))
sketch2.addConstraint(Sketcher.Constraint("Angle", 10, Q("-149.999995 deg")))
sketch2.addConstraint(Sketcher.Constraint("Angle", 14, Q("-125.999998 deg")))
sketch2.addConstraint(Sketcher.Constraint("Angle", 18, Q("-102.000005 deg")))
sketch2.addConstraint(Sketcher.Constraint("Angle", 46, Q("66 deg")))
sketch2.addConstraint(Sketcher.Constraint("Radius", 1, Q("26.834078 mm")))
sketch2.addConstraint(Sketcher.Constraint("Radius", 5, Q("26.833859 mm")))
sketch2.addConstraint(Sketcher.Constraint("Radius", 21, Q("26.834038 mm")))
sketch2.addConstraint(Sketcher.Constraint("Radius", 9, Q("26.833838 mm")))
sketch2.addConstraint(Sketcher.Constraint("Radius", 13, Q("26.834112 mm")))
sketch2.addConstraint(Sketcher.Constraint("Radius", 17, Q("26.834145 mm")))
sketch2.addConstraint(Sketcher.Constraint("Radius", 45, Q("26.833685 mm")))
sketch2.addConstraint(Sketcher.Constraint("Radius", 49, Q("26.833957 mm")))
sketch2.addConstraint(Sketcher.Constraint("DistanceX", 51, 2, 51, 1, Q("6.90734 mm")))
sketch2.addConstraint(Sketcher.Constraint("DistanceY", 50, 1, 50, 2, Q("5.623491 mm")))
sketch2.addConstraint(Sketcher.Constraint("DistanceX", 0, 2, -1, 1, Q("22.0866 mm")))
sketch2.addConstraint(Sketcher.Constraint("DistanceY", -1, 1, 56, 2, Q("22.905398 mm")))
sketch2.addConstraint(Sketcher.Constraint("Distance", 0, Q("5.623491 mm")))
sketch2.addConstraint(Sketcher.Constraint("Distance", 3, Q("6.90734 mm")))
sketch2.addConstraint(Sketcher.Constraint("DistanceX", -1, 1, 13, 3, Q("0.000132 mm")))
sketch2.addConstraint(Sketcher.Constraint("DistanceY", -1, 1, 13, 3, Q("0.000121 mm")))
sketch2.addConstraint(Sketcher.Constraint("DistanceY", -1, 1, 1, 2, Q("11.507811 mm")))
sketch2.addConstraint(Sketcher.Constraint("DistanceX", 3, 2, -1, 1, Q("31.723831 mm")))
sketch2.addConstraint(Sketcher.Constraint("DistanceY", -1, 1, 5, 2, Q("0.65317 mm")))
sketch2.addConstraint(Sketcher.Constraint("DistanceX", 8, 2, -1, 1, Q("26.10397 mm")))
sketch2.addConstraint(Sketcher.Constraint("DistanceY", 9, 2, -1, 1, Q("10.31441 mm")))
sketch2.addConstraint(Sketcher.Constraint("DistanceX", 14, 2, -1, 1, Q("21.740891 mm")))
sketch2.addConstraint(Sketcher.Constraint("DistanceY", 18, 2, -1, 1, Q("30.81179 mm")))
sketch2.addConstraint(Sketcher.Constraint("DistanceY", -1, 1, 42, 2, Q("19.002342 mm")))
sketch2.addConstraint(Sketcher.Constraint("DistanceY", -1, 1, 17, 3, Q("0.000193 mm")))
sketch2.addConstraint(Sketcher.Constraint("DistanceX", -1, 1, 45, 3, Q("0.000147 mm")))

additiveloft = body.newObject("PartDesign::AdditiveLoft", "AdditiveLoft")
additiveloft.Profile = sketch1
additiveloft.Sections = [sketch2]

doc.recompute()
